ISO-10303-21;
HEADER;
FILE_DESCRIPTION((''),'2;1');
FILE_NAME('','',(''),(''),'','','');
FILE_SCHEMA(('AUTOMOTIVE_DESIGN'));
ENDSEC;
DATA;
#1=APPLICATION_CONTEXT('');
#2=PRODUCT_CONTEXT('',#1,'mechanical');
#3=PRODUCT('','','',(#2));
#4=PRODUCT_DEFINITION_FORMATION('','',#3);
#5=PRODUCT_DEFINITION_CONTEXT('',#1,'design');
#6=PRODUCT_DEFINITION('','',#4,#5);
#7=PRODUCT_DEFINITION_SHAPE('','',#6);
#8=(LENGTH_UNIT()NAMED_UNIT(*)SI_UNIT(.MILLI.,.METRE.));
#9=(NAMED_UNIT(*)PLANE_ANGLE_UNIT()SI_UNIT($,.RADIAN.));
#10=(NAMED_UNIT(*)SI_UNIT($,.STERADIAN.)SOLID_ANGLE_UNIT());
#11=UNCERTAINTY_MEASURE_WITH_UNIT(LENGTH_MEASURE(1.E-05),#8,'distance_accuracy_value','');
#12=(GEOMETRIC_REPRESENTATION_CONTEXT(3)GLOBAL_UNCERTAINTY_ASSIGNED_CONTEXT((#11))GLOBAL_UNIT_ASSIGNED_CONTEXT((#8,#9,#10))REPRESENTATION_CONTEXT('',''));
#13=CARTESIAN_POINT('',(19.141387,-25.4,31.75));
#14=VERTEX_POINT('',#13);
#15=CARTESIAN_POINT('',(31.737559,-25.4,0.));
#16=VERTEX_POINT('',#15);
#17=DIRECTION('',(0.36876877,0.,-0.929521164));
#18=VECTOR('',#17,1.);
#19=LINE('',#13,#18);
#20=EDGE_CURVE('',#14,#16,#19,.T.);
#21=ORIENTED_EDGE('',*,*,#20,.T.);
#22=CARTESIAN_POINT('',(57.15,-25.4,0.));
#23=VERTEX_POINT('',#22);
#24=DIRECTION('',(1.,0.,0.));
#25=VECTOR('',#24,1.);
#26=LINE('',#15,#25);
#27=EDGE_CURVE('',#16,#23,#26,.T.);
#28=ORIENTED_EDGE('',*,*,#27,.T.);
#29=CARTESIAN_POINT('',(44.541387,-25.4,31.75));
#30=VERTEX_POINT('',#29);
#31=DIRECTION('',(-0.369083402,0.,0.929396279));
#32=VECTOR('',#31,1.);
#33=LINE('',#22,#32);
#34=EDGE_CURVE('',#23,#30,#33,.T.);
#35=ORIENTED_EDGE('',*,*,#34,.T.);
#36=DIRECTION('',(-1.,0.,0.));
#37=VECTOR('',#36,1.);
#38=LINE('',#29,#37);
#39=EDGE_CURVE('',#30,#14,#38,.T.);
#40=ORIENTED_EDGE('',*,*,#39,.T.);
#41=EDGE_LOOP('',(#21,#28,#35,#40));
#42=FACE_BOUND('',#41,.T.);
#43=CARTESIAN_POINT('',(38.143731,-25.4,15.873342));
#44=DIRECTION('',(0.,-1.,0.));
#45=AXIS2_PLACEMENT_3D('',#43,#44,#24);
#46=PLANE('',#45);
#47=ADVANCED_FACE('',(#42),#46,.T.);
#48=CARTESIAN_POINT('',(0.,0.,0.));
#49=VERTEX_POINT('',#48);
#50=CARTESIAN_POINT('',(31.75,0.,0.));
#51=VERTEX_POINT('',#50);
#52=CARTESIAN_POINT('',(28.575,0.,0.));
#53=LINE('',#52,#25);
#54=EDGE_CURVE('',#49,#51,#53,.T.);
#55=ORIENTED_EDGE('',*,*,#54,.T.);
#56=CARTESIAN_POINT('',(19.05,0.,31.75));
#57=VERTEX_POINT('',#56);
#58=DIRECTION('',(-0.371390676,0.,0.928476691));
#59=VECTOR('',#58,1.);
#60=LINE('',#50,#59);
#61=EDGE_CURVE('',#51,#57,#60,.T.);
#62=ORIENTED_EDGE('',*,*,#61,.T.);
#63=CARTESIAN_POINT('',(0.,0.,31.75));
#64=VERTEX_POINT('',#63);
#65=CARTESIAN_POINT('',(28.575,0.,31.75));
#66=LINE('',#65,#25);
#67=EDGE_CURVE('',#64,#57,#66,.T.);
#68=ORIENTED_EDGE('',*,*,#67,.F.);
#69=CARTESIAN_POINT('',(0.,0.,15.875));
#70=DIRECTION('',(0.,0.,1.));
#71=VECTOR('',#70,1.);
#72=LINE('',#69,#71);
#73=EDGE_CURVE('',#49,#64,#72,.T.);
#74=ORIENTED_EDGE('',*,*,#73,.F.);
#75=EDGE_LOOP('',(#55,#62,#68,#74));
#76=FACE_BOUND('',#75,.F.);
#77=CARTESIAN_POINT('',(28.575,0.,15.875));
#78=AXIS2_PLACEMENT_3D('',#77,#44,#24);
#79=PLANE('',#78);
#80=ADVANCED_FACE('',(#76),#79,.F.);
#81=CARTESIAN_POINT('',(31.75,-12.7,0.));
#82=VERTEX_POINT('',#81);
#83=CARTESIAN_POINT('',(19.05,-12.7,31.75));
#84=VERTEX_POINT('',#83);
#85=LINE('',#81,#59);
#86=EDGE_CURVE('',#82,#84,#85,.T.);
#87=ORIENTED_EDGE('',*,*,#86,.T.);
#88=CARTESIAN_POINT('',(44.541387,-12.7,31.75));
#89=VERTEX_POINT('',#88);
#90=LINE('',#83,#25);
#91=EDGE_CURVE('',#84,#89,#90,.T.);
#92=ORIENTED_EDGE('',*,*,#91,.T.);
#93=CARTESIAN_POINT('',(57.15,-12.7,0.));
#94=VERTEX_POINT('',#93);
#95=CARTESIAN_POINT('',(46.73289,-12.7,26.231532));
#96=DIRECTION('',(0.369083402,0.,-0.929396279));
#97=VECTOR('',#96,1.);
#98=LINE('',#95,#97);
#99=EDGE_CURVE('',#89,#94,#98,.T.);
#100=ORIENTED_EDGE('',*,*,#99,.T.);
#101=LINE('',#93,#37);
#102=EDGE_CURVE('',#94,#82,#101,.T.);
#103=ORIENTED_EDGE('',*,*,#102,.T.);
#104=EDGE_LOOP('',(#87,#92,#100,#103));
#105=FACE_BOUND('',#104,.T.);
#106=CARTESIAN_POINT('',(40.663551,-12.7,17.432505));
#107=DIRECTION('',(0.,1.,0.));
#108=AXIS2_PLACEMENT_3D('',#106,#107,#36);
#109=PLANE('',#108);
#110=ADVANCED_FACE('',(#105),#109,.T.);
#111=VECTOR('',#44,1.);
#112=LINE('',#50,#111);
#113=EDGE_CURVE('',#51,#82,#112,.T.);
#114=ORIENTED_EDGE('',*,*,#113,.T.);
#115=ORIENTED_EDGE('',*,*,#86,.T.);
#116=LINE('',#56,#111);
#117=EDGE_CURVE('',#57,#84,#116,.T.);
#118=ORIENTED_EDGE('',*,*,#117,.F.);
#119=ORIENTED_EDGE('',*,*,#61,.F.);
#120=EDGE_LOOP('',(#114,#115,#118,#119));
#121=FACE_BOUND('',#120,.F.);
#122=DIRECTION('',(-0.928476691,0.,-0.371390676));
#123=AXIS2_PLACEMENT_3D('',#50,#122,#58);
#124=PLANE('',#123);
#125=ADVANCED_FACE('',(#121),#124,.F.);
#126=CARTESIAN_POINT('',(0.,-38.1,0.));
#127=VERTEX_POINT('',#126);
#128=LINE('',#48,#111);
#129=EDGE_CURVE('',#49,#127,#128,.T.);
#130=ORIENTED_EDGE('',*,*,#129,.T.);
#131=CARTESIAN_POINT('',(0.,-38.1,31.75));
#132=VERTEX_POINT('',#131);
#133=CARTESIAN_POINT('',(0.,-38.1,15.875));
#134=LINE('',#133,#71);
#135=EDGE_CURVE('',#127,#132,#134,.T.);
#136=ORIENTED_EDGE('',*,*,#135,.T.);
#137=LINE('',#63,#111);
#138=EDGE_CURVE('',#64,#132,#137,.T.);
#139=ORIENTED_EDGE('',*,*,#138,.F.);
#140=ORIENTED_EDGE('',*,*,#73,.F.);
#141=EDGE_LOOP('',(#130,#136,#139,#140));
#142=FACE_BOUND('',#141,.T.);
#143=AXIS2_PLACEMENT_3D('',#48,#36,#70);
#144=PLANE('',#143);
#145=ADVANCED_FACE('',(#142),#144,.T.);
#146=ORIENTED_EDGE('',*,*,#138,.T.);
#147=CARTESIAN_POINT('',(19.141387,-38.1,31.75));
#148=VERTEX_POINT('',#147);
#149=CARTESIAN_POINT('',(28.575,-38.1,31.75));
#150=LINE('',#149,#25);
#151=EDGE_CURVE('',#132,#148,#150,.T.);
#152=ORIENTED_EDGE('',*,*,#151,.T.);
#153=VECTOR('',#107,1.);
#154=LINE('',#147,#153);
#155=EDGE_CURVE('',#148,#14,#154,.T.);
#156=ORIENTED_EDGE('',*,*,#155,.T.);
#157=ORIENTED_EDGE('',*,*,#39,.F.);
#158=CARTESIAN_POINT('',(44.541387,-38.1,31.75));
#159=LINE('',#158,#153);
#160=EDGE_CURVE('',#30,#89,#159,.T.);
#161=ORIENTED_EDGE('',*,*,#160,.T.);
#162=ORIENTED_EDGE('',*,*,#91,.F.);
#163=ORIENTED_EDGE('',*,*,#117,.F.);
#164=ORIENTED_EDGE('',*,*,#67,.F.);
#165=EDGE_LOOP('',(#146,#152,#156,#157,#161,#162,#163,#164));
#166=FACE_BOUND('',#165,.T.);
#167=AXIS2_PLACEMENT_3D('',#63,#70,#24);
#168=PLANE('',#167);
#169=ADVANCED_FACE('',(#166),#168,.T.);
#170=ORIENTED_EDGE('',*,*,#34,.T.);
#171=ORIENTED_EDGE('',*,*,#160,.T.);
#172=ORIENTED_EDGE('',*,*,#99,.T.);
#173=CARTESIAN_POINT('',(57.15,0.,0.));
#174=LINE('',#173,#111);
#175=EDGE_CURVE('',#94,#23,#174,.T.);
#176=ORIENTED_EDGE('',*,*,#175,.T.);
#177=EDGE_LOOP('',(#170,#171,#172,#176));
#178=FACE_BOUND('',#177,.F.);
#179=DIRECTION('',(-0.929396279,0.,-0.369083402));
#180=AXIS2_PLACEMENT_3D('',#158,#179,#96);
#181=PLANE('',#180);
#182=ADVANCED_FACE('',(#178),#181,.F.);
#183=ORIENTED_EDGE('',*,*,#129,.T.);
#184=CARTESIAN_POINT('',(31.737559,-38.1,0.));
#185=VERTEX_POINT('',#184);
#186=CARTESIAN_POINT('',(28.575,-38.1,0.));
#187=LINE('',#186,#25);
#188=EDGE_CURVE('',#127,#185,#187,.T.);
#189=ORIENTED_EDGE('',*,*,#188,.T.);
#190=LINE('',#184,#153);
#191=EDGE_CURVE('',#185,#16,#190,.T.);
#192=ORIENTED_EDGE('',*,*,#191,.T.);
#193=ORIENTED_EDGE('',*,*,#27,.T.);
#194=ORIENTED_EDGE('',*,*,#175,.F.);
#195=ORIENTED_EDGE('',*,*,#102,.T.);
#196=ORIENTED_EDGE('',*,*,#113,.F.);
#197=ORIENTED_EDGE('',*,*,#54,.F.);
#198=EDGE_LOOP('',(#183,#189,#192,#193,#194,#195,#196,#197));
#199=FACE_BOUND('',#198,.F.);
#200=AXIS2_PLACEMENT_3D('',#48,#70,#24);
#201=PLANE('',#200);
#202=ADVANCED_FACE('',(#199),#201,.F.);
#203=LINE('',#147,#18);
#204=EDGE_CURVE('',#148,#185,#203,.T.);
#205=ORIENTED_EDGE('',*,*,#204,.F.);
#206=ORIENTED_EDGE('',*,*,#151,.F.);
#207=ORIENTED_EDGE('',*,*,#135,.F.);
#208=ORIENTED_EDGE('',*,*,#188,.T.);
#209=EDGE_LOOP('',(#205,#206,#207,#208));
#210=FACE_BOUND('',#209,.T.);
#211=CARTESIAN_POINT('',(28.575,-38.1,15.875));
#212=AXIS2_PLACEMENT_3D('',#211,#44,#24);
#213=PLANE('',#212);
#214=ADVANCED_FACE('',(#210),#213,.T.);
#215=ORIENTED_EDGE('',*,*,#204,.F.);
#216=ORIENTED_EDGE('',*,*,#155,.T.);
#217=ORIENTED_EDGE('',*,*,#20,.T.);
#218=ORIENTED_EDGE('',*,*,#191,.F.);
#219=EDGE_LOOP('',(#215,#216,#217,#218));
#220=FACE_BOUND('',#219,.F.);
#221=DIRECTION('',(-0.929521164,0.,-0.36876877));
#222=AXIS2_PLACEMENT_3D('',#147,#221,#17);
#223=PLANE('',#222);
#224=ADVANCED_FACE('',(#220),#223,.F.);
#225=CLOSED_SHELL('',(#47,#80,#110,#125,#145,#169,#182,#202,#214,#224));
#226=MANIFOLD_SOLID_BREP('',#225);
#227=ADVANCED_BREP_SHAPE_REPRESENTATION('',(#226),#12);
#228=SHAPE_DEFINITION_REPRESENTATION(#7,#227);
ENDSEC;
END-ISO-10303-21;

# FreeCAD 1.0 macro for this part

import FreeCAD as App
import Part
import Sketcher

V = App.Vector
Q = App.Units.Quantity

doc = App.newDocument("Part")
body = doc.addObject("PartDesign::Body", "Body")

# Sketch on XZ plane
sketch1 = doc.addObject("Sketcher::SketchObject", "Sketch")
body.addObject(sketch1)
sketch1.AttachmentSupport = (doc.XZ_Plane, [""])
sketch1.MapMode = "FlatFace"
sketch1.addGeometry(Part.LineSegment(V(0, 32, 0), V(0, 0, 0)), False)
sketch1.addGeometry(Part.LineSegment(V(0, 0, 0), V(57, 0, 0)), False)
sketch1.addGeometry(Part.LineSegment(V(57, 0, 0), V(57, 32, 0)), False)
sketch1.addGeometry(Part.LineSegment(V(57, 32, 0), V(0, 32, 0)), False)
sketch1.addConstraint(Sketcher.Constraint("Coincident", 0, 2, 1, 1))
sketch1.addConstraint(Sketcher.Constraint("Coincident", 1, 2, 2, 1))
sketch1.addConstraint(Sketcher.Constraint("Coincident", 2, 2, 3, 1))
sketch1.addConstraint(Sketcher.Constraint("Coincident", 3, 2, 0, 1))
sketch1.addConstraint(Sketcher.Constraint("Vertical", 0))
sketch1.addConstraint(Sketcher.Constraint("Horizontal", 1))
sketch1.addConstraint(Sketcher.Constraint("Vertical", 2))
sketch1.addConstraint(Sketcher.Constraint("Horizontal", 3))
sketch1.addConstraint(Sketcher.Constraint("Coincident", 0, 2, -1, 1))
sketch1.addConstraint(Sketcher.Constraint("DistanceX", 1, 1, 1, 2, Q("2.25 in")))
sketch1.addConstraint(Sketcher.Constraint("DistanceY", 0, 2, 0, 1, Q("1.25 in")))
pad1 = doc.addObject("PartDesign::Pad", "Pad")
body.addObject(pad1)
pad1.Profile = sketch1
pad1.Length = Q("1.5 in")

# Sketch on XZ plane
sketch2 = doc.addObject("Sketcher::SketchObject", "Sketch001")
body.addObject(sketch2)
sketch2.AttachmentSupport = (doc.XZ_Plane, [""])
sketch2.MapMode = "FlatFace"
sketch2.AttachmentOffset = App.Placement(V(0, 0, 1.5 * 25.4), App.Rotation())
sketch2.addGeometry(Part.LineSegment(V(57, 32, 0), V(45, 32, 0)), False)
sketch2.addGeometry(Part.LineSegment(V(45, 32, 0), V(57, 0, 0)), False)
sketch2.addGeometry(Part.LineSegment(V(57, 0, 0), V(57, 32, 0)), False)
sketch2.addConstraint(Sketcher.Constraint("Coincident", 0, 2, 1, 1))
sketch2.addConstraint(Sketcher.Constraint("Coincident", 1, 2, 2, 1))
sketch2.addConstraint(Sketcher.Constraint("Coincident", 2, 2, 0, 1))
sketch2.addConstraint(Sketcher.Constraint("Horizontal", 0))
sketch2.addConstraint(Sketcher.Constraint("Vertical", 2))
sketch2.addConstraint(Sketcher.Constraint("PointOnObject", 1, 2, -1))
sketch2.addConstraint(Sketcher.Constraint("DistanceY", 2, 1, 2, 2, Q("1.25 in")))
sketch2.addConstraint(Sketcher.Constraint("DistanceX", -1, 1, 1, 2, Q("2.25 in")))
sketch2.addConstraint(Sketcher.Constraint("Distance", 1, 34.161962))
pocket1 = doc.addObject("PartDesign::Pocket", "Pocket")
body.addObject(pocket1)
pocket1.Profile = sketch2
pocket1.Length = Q("7 in")

# Sketch on XZ plane
sketch3 = doc.addObject("Sketcher::SketchObject", "Sketch002")
body.addObject(sketch3)
sketch3.AttachmentSupport = (doc.XZ_Plane, [""])
sketch3.MapMode = "FlatFace"
sketch3.AttachmentOffset = App.Placement(V(0, 0, 1.5 * 25.4), App.Rotation())
sketch3.addGeometry(Part.LineSegment(V(45, 32, 0), V(19, 32, 0)), False)
sketch3.addGeometry(Part.LineSegment(V(19, 32, 0), V(32, 0, 0)), False)
sketch3.addGeometry(Part.LineSegment(V(32, 0, 0), V(57, 0, 0)), False)
sketch3.addGeometry(Part.LineSegment(V(57, 0, 0), V(45, 32, 0)), False)
sketch3.addConstraint(Sketcher.Constraint("Coincident", 0, 2, 1, 1))
sketch3.addConstraint(Sketcher.Constraint("Coincident", 1, 2, 2, 1))
sketch3.addConstraint(Sketcher.Constraint("Coincident", 2, 2, 3, 1))
sketch3.addConstraint(Sketcher.Constraint("Coincident", 3, 2, 0, 1))
sketch3.addConstraint(Sketcher.Constraint("Horizontal", 0))
sketch3.addConstraint(Sketcher.Constraint("Horizontal", 2))
sketch3.addConstraint(Sketcher.Constraint("PointOnObject", 1, 2, -1))
sketch3.addConstraint(Sketcher.Constraint("DistanceX", 0, 2, 0, 1, Q("1 in")))
sketch3.addConstraint(Sketcher.Constraint("DistanceY", -1, 1, 0, 2, Q("1.25 in")))
sketch3.addConstraint(Sketcher.Constraint("DistanceX", -1, 1, 2, 2, Q("2.25 in")))
sketch3.addConstraint(Sketcher.Constraint("DistanceX", 2, 1, 2, 2, 25.412441))
sketch3.addConstraint(Sketcher.Constraint("Distance", 1, 34.157372))
pocket2 = doc.addObject("PartDesign::Pocket", "Pocket001")
body.addObject(pocket2)
pocket2.Profile = sketch3
pocket2.Length = Q("0.5 in")

# Sketch on XZ plane
sketch4 = doc.addObject("Sketcher::SketchObject", "Sketch003")
body.addObject(sketch4)
sketch4.AttachmentSupport = (doc.XZ_Plane, [""])
sketch4.MapMode = "FlatFace"
sketch4.addGeometry(Part.LineSegment(V(32, 0, 0), V(19, 32, 0)), False)
sketch4.addGeometry(Part.LineSegment(V(19, 32, 0), V(57, 32, 0)), False)
sketch4.addGeometry(Part.LineSegment(V(57, 32, 0), V(57, 0, 0)), False)
sketch4.addGeometry(Part.LineSegment(V(57, 0, 0), V(32, 0, 0)), False)
sketch4.addConstraint(Sketcher.Constraint("Coincident", 0, 2, 1, 1))
sketch4.addConstraint(Sketcher.Constraint("Coincident", 1, 2, 2, 1))
sketch4.addConstraint(Sketcher.Constraint("Coincident", 2, 2, 3, 1))
sketch4.addConstraint(Sketcher.Constraint("Coincident", 3, 2, 0, 1))
sketch4.addConstraint(Sketcher.Constraint("Horizontal", 1))
sketch4.addConstraint(Sketcher.Constraint("Vertical", 2))
sketch4.addConstraint(Sketcher.Constraint("Horizontal", 3))
sketch4.addConstraint(Sketcher.Constraint("PointOnObject", 2, 2, -1))
sketch4.addConstraint(Sketcher.Constraint("DistanceX", 3, 2, 3, 1, Q("1 in")))
sketch4.addConstraint(Sketcher.Constraint("DistanceX", 1, 1, 1, 2, Q("1.5 in")))
sketch4.addConstraint(Sketcher.Constraint("DistanceY", 2, 2, 2, 1, Q("1.25 in")))
sketch4.addConstraint(Sketcher.Constraint("DistanceX", -1, 1, 0, 2, Q("0.75 in")))
pocket3 = doc.addObject("PartDesign::Pocket", "Pocket002")
body.addObject(pocket3)
pocket3.Profile = sketch4
pocket3.Length = Q("0.5 in")
pocket3.Reversed = True

doc.recompute()
